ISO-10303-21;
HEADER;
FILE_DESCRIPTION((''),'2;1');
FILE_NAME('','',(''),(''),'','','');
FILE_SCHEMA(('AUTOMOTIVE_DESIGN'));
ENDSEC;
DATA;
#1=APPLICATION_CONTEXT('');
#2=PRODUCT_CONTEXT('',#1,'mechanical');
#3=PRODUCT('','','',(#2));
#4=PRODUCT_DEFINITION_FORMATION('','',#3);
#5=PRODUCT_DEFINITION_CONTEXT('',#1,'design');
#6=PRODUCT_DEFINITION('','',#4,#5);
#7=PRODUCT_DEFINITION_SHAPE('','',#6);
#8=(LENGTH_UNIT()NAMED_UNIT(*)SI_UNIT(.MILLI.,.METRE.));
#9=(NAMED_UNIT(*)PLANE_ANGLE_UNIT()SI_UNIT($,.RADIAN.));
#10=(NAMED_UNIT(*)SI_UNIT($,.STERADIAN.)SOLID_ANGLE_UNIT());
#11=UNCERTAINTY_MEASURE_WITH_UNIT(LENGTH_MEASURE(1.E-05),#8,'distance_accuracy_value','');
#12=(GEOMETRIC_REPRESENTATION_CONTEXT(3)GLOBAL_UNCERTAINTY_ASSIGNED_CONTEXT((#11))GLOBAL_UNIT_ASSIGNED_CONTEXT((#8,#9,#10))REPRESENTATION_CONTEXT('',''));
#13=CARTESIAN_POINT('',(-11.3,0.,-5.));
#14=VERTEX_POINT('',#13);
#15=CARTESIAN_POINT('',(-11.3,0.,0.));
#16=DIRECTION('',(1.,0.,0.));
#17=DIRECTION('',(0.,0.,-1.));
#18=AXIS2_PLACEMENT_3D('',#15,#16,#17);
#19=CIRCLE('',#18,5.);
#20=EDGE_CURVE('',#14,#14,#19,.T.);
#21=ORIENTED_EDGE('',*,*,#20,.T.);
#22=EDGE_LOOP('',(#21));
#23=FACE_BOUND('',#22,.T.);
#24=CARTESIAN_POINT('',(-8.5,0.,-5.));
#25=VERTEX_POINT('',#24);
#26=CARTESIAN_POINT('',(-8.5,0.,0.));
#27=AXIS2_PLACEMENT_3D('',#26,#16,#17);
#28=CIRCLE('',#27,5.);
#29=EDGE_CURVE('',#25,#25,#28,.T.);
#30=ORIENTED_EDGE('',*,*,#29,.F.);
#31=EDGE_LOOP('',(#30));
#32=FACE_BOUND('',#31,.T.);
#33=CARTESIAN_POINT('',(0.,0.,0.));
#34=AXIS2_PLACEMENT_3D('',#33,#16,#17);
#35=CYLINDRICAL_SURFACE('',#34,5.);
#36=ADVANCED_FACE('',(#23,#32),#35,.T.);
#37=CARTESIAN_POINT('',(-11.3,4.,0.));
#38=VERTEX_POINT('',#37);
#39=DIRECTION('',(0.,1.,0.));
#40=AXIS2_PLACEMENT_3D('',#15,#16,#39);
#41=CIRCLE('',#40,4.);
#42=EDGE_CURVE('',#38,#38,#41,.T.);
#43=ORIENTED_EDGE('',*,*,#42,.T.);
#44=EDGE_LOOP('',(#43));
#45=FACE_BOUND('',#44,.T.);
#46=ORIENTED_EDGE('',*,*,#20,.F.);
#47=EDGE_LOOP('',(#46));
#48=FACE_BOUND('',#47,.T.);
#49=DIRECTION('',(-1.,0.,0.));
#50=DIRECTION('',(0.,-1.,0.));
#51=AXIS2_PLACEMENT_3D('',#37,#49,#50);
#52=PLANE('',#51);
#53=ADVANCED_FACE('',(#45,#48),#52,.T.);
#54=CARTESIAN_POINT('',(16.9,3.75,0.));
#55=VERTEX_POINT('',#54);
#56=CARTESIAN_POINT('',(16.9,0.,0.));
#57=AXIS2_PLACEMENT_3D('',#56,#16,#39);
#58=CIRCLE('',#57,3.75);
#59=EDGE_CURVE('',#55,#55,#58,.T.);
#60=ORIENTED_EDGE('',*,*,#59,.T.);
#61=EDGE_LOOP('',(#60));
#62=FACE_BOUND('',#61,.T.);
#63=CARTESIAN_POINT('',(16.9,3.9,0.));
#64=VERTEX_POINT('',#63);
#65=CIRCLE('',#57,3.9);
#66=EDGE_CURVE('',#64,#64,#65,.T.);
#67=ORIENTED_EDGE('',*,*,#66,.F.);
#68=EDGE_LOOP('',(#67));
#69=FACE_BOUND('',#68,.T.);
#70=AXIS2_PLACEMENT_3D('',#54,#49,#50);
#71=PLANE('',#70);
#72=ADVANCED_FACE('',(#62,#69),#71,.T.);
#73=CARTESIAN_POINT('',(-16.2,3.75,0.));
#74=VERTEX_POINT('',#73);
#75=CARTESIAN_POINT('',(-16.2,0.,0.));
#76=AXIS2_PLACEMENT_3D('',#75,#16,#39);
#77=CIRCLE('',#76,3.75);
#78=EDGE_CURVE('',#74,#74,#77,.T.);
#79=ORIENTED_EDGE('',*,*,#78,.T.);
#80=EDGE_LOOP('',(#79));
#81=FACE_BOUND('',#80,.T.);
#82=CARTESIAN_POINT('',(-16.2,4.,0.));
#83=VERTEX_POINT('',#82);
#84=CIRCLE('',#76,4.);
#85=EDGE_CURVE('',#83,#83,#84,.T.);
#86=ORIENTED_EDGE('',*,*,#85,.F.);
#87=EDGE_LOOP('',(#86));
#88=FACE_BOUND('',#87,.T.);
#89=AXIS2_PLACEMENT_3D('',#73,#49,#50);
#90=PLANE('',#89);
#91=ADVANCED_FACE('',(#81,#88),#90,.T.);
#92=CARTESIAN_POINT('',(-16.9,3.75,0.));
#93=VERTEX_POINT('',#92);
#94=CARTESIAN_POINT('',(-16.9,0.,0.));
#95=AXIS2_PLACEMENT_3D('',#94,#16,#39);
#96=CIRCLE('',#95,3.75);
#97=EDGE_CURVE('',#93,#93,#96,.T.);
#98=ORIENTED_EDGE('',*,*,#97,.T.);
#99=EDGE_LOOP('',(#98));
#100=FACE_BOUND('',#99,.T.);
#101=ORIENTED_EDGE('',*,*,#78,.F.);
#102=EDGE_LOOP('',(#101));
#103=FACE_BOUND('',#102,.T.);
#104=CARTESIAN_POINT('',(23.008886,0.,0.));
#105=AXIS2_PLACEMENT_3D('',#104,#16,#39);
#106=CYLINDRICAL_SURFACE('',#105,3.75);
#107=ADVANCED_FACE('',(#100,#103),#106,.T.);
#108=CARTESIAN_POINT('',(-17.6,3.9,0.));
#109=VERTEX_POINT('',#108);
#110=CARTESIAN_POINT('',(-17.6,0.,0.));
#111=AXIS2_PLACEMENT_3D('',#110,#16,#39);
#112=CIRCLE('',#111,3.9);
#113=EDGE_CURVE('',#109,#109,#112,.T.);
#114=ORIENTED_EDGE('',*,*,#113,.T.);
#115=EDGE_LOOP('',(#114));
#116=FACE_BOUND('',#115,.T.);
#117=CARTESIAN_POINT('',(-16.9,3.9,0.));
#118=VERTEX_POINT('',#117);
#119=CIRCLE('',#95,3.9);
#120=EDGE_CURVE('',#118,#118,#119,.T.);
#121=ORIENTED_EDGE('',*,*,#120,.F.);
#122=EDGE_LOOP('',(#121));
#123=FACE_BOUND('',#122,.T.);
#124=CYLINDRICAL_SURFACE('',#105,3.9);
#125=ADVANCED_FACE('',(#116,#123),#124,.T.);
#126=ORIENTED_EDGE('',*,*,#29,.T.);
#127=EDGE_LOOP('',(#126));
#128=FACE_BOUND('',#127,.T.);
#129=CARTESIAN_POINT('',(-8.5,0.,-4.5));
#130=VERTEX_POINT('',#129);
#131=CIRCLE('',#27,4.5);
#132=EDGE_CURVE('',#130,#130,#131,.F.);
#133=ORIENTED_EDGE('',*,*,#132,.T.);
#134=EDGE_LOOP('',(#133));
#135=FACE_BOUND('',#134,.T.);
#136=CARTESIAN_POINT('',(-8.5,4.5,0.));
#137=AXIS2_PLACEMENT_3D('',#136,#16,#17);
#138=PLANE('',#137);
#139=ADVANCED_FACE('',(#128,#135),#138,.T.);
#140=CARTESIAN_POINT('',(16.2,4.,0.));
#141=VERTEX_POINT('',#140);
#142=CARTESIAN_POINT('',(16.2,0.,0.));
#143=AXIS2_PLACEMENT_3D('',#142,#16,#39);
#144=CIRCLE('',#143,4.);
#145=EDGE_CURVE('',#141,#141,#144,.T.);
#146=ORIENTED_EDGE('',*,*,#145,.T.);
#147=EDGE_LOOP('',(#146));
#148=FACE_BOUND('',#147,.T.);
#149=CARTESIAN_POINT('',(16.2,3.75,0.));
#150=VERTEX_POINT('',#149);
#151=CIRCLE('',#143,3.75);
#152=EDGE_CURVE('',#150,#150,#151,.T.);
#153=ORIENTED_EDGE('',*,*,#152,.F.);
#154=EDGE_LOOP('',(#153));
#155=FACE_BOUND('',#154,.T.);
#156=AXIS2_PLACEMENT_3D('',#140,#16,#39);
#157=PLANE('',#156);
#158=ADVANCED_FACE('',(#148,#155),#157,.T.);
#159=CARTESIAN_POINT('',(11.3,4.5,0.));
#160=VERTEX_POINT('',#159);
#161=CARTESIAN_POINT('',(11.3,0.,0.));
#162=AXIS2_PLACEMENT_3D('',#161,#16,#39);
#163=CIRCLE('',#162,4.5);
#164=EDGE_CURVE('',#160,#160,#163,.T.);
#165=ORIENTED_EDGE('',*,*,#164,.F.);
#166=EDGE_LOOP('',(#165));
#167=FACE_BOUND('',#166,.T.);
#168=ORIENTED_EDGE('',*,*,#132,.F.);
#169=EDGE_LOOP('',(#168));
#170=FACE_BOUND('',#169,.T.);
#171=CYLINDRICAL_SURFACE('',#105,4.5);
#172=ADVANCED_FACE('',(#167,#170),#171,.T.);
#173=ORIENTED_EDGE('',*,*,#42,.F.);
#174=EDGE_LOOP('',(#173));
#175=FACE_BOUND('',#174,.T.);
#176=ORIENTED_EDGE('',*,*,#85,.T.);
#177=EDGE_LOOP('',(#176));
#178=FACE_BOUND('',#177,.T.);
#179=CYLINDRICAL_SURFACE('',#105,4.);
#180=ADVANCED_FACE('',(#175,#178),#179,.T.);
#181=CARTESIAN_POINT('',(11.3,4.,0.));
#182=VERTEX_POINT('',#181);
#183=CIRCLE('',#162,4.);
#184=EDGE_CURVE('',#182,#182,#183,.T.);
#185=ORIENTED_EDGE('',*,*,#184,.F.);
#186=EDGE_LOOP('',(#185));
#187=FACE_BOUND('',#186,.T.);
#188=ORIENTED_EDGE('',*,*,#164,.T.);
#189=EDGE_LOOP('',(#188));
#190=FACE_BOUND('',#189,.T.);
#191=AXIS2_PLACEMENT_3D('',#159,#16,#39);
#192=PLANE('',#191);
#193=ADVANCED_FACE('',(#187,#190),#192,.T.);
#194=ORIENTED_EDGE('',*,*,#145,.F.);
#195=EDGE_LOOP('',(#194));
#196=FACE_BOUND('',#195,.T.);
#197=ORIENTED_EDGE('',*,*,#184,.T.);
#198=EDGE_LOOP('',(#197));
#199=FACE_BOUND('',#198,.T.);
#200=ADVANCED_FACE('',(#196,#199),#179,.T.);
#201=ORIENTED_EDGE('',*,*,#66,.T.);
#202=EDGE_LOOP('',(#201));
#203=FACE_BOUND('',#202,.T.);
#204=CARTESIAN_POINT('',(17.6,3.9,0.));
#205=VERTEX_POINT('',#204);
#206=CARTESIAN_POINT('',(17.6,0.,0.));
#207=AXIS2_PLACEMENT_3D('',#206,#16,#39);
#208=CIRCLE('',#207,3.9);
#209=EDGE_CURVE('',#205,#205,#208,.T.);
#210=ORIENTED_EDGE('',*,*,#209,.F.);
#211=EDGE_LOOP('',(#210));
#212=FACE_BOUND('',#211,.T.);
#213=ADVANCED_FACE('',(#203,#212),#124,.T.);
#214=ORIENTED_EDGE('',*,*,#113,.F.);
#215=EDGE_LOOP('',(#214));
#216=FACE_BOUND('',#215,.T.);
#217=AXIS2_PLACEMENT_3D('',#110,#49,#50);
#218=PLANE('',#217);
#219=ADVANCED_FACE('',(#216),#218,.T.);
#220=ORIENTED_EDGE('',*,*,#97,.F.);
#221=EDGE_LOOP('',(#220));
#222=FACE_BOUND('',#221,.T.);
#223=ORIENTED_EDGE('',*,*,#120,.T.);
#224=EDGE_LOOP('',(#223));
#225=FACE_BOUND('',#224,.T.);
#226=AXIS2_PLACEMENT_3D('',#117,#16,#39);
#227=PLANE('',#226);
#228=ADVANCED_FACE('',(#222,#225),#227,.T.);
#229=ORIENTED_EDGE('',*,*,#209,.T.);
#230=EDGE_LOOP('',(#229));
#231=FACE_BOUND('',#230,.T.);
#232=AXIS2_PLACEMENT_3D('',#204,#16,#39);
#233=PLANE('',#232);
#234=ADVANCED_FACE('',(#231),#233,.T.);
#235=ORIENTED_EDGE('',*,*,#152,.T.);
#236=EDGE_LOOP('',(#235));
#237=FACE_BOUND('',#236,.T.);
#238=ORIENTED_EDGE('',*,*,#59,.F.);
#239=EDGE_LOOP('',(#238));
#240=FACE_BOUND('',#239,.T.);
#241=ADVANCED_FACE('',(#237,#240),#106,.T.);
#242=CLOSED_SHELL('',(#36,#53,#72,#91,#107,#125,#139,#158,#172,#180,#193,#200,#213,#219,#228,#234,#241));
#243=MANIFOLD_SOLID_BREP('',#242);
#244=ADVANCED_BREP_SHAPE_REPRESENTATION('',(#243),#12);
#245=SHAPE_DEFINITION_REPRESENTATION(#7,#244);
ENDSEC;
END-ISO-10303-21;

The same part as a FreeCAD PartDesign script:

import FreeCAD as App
import Part
import Sketcher
Q = App.Units.Quantity

doc = App.newDocument("Part")
body = doc.addObject("PartDesign::Body", "Body")

# Sketch on XY plane
sketch1 = doc.addObject("Sketcher::SketchObject", "Sketch")
body.addObject(sketch1)
sketch1.AttachmentSupport = (doc.XY_Plane, [""])
sketch1.MapMode = "FlatFace"
sketch1.addGeometry([
    Part.LineSegment(App.Vector(-17.6, 0, 0), App.Vector(17.6, 0, 0)),  # 0
    Part.LineSegment(App.Vector(17.6, 0, 0), App.Vector(17.6, 3.9, 0)),  # 1
    Part.LineSegment(App.Vector(17.6, 3.9, 0), App.Vector(16.9, 3.9, 0)),  # 2
    Part.LineSegment(App.Vector(16.9, 3.9, 0), App.Vector(16.9, 3.75, 0)),  # 3
    Part.LineSegment(App.Vector(16.9, 3.75, 0), App.Vector(16.2, 3.75, 0)),  # 4
    Part.LineSegment(App.Vector(16.2, 3.75, 0), App.Vector(16.2, 4, 0)),  # 5
    Part.LineSegment(App.Vector(16.2, 4, 0), App.Vector(11.3, 4, 0)),  # 6
    Part.LineSegment(App.Vector(11.3, 4, 0), App.Vector(11.3, 4.5, 0)),  # 7
    Part.LineSegment(App.Vector(11.3, 4.5, 0), App.Vector(-11.3, 4.5, 0)),  # 8
    Part.LineSegment(App.Vector(-11.3, 4.5, 0), App.Vector(-11.3, 4, 0)),  # 9
    Part.LineSegment(App.Vector(-11.3, 4, 0), App.Vector(-16.2, 4, 0)),  # 10
    Part.LineSegment(App.Vector(-16.2, 4, 0), App.Vector(-16.2, 3.75, 0)),  # 11
    Part.LineSegment(App.Vector(-16.2, 3.75, 0), App.Vector(-16.9, 3.75, 0)),  # 12
    Part.LineSegment(App.Vector(-16.9, 3.75, 0), App.Vector(-16.9, 3.9, 0)),  # 13
    Part.LineSegment(App.Vector(-16.9, 3.9, 0), App.Vector(-17.6, 3.9, 0)),  # 14
    Part.LineSegment(App.Vector(-17.6, 3.9, 0), App.Vector(-17.6, 0, 0)),  # 15
], False)
sketch1.addConstraint([
    Sketcher.Constraint("Coincident", 0, 2, 1, 1),
    Sketcher.Constraint("Coincident", 1, 2, 2, 1),
    Sketcher.Constraint("Coincident", 2, 2, 3, 1),
    Sketcher.Constraint("Coincident", 3, 2, 4, 1),
    Sketcher.Constraint("Coincident", 4, 2, 5, 1),
    Sketcher.Constraint("Coincident", 5, 2, 6, 1),
    Sketcher.Constraint("Coincident", 6, 2, 7, 1),
    Sketcher.Constraint("Coincident", 7, 2, 8, 1),
    Sketcher.Constraint("Coincident", 8, 2, 9, 1),
    Sketcher.Constraint("Coincident", 9, 2, 10, 1),
    Sketcher.Constraint("Coincident", 10, 2, 11, 1),
    Sketcher.Constraint("Coincident", 11, 2, 12, 1),
    Sketcher.Constraint("Coincident", 12, 2, 13, 1),
    Sketcher.Constraint("Coincident", 13, 2, 14, 1),
    Sketcher.Constraint("Coincident", 14, 2, 15, 1),
    Sketcher.Constraint("Coincident", 15, 2, 0, 1),
    Sketcher.Constraint("Horizontal", 0),
    Sketcher.Constraint("Vertical", 1),
    Sketcher.Constraint("Horizontal", 2),
    Sketcher.Constraint("Vertical", 3),
    Sketcher.Constraint("Horizontal", 4),
    Sketcher.Constraint("Vertical", 5),
    Sketcher.Constraint("Horizontal", 6),
    Sketcher.Constraint("Vertical", 7),
    Sketcher.Constraint("Horizontal", 8),
    Sketcher.Constraint("Vertical", 9),
    Sketcher.Constraint("Horizontal", 10),
    Sketcher.Constraint("Vertical", 11),
    Sketcher.Constraint("Horizontal", 12),
    Sketcher.Constraint("Vertical", 13),
    Sketcher.Constraint("Horizontal", 14),
    Sketcher.Constraint("Vertical", 15),
    Sketcher.Constraint("Symmetric", 0, 2, 15, 2, -1, 1),
    Sketcher.Constraint("Symmetric", 6, 2, 9, 2, -2),
    Sketcher.Constraint("Symmetric", 4, 2, 11, 2, -2),
    Sketcher.Constraint("Symmetric", 2, 2, 13, 2, -2),
    Sketcher.Constraint("Equal", 2, 4),
    Sketcher.Constraint("DistanceX", 0, 1, 0, 2, Q("35.2 mm")),
    Sketcher.Constraint("DistanceX", 2, 2, 2, 1, Q("0.7 mm")),
    Sketcher.Constraint("DistanceX", 6, 2, 6, 1, Q("4.9 mm")),
    Sketcher.Constraint("DistanceY", 1, 1, 1, 2, Q("3.9 mm")),
    Sketcher.Constraint("DistanceY", 7, 1, 7, 2, Q("0.5 mm")),
    Sketcher.Constraint("DistanceY", -1, 1, 5, 2, Q("4 mm")),
    Sketcher.Constraint("DistanceY", 3, 2, 3, 1, Q("0.15 mm")),
])
revolution = doc.addObject("PartDesign::Revolution", "Revolution")
body.addObject(revolution)
revolution.Profile = sketch1
revolution.ReferenceAxis = (sketch1, ["H_Axis"])
revolution.Angle = 360

# Sketch on XY plane
sketch2 = doc.addObject("Sketcher::SketchObject", "Sketch001")
body.addObject(sketch2)
sketch2.AttachmentSupport = (doc.XY_Plane, [""])
sketch2.MapMode = "FlatFace"
sketch2.addGeometry([
    Part.LineSegment(App.Vector(-11.3, 5, 0), App.Vector(-11.3, 4.5, 0)),
    Part.LineSegment(App.Vector(-11.3, 4.5, 0), App.Vector(-8.5, 4.5, 0)),
    Part.LineSegment(App.Vector(-8.5, 4.5, 0), App.Vector(-8.5, 5, 0)),
    Part.LineSegment(App.Vector(-8.5, 5, 0), App.Vector(-11.3, 5, 0)),
], False)
sketch2.addConstraint([
    Sketcher.Constraint("Coincident", 0, 2, 1, 1),
    Sketcher.Constraint("Coincident", 1, 2, 2, 1),
    Sketcher.Constraint("Coincident", 2, 2, 3, 1),
    Sketcher.Constraint("Coincident", 3, 2, 0, 1),
    Sketcher.Constraint("Vertical", 0),
    Sketcher.Constraint("Horizontal", 1),
    Sketcher.Constraint("Vertical", 2),
    Sketcher.Constraint("Horizontal", 3),
    Sketcher.Constraint("DistanceX", 1, 1, 1, 2, Q("2.8 mm")),
    Sketcher.Constraint("DistanceY", 0, 2, 0, 1, Q("0.5 mm")),
    Sketcher.Constraint("DistanceY", -1, 1, 2, 2, Q("5 mm")),
    Sketcher.Constraint("DistanceX", 0, 2, -1, 1, Q("11.3 mm")),
])
revolution2 = doc.addObject("PartDesign::Revolution", "Revolution001")
body.addObject(revolution2)
revolution2.Profile = sketch2
revolution2.ReferenceAxis = (sketch2, ["H_Axis"])
revolution2.Angle = 360

doc.recompute()
